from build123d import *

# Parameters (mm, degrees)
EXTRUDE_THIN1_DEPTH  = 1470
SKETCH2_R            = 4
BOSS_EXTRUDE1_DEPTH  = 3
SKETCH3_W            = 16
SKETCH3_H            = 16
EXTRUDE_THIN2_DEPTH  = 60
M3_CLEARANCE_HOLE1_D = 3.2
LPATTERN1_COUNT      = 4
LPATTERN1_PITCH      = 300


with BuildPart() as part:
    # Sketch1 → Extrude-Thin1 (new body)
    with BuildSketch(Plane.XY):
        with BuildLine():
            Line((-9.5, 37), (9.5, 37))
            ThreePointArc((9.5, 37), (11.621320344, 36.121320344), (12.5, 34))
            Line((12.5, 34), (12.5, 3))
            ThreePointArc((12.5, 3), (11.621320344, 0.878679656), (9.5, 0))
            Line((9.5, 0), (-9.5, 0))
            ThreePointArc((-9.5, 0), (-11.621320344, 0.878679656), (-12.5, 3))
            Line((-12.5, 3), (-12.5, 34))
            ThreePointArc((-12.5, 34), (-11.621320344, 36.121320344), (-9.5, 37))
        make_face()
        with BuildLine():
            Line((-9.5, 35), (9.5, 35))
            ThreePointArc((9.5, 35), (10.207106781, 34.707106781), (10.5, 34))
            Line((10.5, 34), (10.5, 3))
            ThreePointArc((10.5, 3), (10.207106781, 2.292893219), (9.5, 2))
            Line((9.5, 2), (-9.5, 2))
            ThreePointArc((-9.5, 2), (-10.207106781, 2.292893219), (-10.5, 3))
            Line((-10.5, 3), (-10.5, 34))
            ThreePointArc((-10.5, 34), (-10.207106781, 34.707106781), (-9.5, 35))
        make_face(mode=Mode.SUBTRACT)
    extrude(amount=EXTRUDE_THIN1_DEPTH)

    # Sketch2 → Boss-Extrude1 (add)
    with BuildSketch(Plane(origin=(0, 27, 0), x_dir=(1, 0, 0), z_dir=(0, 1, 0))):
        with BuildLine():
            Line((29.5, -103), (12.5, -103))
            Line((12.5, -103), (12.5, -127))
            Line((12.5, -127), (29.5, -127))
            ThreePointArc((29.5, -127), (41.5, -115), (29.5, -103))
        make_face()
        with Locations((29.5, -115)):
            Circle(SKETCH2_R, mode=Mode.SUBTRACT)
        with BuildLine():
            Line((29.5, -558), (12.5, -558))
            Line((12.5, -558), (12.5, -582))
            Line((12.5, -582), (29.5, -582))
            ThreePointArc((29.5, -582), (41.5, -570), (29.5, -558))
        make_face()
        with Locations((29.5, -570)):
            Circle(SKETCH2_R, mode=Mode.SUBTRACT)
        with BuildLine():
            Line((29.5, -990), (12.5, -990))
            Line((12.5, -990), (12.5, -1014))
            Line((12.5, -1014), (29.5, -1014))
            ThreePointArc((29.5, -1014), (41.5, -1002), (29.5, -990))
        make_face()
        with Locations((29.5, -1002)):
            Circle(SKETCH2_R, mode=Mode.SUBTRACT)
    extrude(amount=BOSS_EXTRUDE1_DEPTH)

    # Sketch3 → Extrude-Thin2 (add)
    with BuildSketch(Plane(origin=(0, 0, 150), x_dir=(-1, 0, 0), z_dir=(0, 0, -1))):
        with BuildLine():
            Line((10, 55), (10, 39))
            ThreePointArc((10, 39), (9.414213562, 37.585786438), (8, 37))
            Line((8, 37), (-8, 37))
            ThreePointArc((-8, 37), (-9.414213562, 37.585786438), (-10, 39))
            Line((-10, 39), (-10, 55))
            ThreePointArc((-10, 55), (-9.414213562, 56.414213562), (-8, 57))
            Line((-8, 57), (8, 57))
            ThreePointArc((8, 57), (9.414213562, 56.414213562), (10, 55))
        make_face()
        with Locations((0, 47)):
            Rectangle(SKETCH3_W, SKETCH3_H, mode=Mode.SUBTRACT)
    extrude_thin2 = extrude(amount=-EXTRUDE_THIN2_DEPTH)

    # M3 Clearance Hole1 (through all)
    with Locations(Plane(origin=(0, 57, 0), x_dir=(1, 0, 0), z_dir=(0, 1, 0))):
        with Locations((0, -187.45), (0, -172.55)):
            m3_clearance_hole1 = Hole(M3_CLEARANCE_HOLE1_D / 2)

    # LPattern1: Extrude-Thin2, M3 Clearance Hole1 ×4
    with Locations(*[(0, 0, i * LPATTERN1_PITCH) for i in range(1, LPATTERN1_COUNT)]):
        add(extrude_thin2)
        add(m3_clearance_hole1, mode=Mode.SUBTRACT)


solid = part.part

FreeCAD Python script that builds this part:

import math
import FreeCAD as App
import Part
import Sketcher
from FreeCAD import Vector
Q = App.Units.Quantity

doc = App.newDocument("Part")
params = doc.addObject("Spreadsheet::Sheet", "Params")
for row, (alias, value) in enumerate([
    ("sketch1_radius", "3 mm"),
    ("sketch1_radius2", "1 mm"),
    ("sketch1_width", "19 mm"),
    ("sketch1_height", "31 mm"),
    ("pad1_length", "1470 mm"),
    ("sketch2_diameter", "8 mm"),
    ("sketch2_radius", "12 mm"),
    ("sketch2_width", "17 mm"),
    ("pad2_length", "3 mm"),
    ("sketch3_radius", "2 mm"),
    ("sketch3_width", "16 mm"),
    ("pad3_length", "60 mm"),
    ("sketch4_diameter", "3.2 mm"),
    ("hole_diameter", "3.2 mm"),
    ("linearpattern_pitch", "300 mm"),
], start=1):
    params.set(f"A{row}", alias)
    params.set(f"B{row}", "=" + value)
    params.setAlias(f"B{row}", alias)

body = doc.addObject("PartDesign::Body", "Body")

# Sketch on XY plane
sketch1 = body.newObject("Sketcher::SketchObject", "Sketch")
sketch1.AttachmentSupport = (doc.getObject("XY_Plane"), [""])
sketch1.MapMode = "FlatFace"
sketch1.addGeometry([
    Part.LineSegment(Vector(9.5, 37, 0), Vector(-9.5, 37, 0)),  # 0
    Part.ArcOfCircle(Part.Circle(Vector(-9.5, 34, 0), Vector(0, 0, 1), 3), math.radians(90), math.radians(180)),  # 1
    Part.LineSegment(Vector(-12.5, 34, 0), Vector(-12.5, 3, 0)),  # 2
    Part.ArcOfCircle(Part.Circle(Vector(-9.5, 3, 0), Vector(0, 0, 1), 3), math.radians(180), math.radians(270)),  # 3
    Part.LineSegment(Vector(-9.5, 0, 0), Vector(9.5, 0, 0)),  # 4
    Part.ArcOfCircle(Part.Circle(Vector(9.5, 3, 0), Vector(0, 0, 1), 3), math.radians(-90), math.radians(0)),  # 5
    Part.LineSegment(Vector(12.5, 3, 0), Vector(12.5, 34, 0)),  # 6
    Part.ArcOfCircle(Part.Circle(Vector(9.5, 34, 0), Vector(0, 0, 1), 3), math.radians(0), math.radians(90)),  # 7
    Part.LineSegment(Vector(-9.5, 35, 0), Vector(9.5, 35, 0)),  # 8
    Part.ArcOfCircle(Part.Circle(Vector(9.5, 34, 0), Vector(0, 0, 1), 1), math.radians(0), math.radians(90)),  # 9
    Part.LineSegment(Vector(10.5, 34, 0), Vector(10.5, 3, 0)),  # 10
    Part.ArcOfCircle(Part.Circle(Vector(9.5, 3, 0), Vector(0, 0, 1), 1), math.radians(-90), math.radians(0)),  # 11
    Part.LineSegment(Vector(9.5, 2, 0), Vector(-9.5, 2, 0)),  # 12
    Part.ArcOfCircle(Part.Circle(Vector(-9.5, 3, 0), Vector(0, 0, 1), 1), math.radians(-180), math.radians(-90)),  # 13
    Part.LineSegment(Vector(-10.5, 3, 0), Vector(-10.5, 34, 0)),  # 14
    Part.ArcOfCircle(Part.Circle(Vector(-9.5, 34, 0), Vector(0, 0, 1), 1), math.radians(90), math.radians(180)),  # 15
], False)
sketch1.addConstraint([
    Sketcher.Constraint("Tangent", 0, 2, 1, 1),
    Sketcher.Constraint("Tangent", 1, 2, 2, 1),
    Sketcher.Constraint("Tangent", 2, 2, 3, 1),
    Sketcher.Constraint("Tangent", 3, 2, 4, 1),
    Sketcher.Constraint("Tangent", 4, 2, 5, 1),
    Sketcher.Constraint("Tangent", 5, 2, 6, 1),
    Sketcher.Constraint("Tangent", 6, 2, 7, 1),
    Sketcher.Constraint("Tangent", 7, 2, 0, 1),
    Sketcher.Constraint("Tangent", 8, 2, 9, 2),
    Sketcher.Constraint("Tangent", 9, 1, 10, 1),
    Sketcher.Constraint("Tangent", 10, 2, 11, 2),
    Sketcher.Constraint("Tangent", 11, 1, 12, 1),
    Sketcher.Constraint("Tangent", 12, 2, 13, 2),
    Sketcher.Constraint("Tangent", 13, 1, 14, 1),
    Sketcher.Constraint("Tangent", 14, 2, 15, 2),
    Sketcher.Constraint("Tangent", 15, 1, 8, 1),
    Sketcher.Constraint("Horizontal", 0),
    Sketcher.Constraint("Vertical", 2),
    Sketcher.Constraint("Horizontal", 4),
    Sketcher.Constraint("Vertical", 6),
    Sketcher.Constraint("Horizontal", 8),
    Sketcher.Constraint("Vertical", 10),
    Sketcher.Constraint("Horizontal", 12),
    Sketcher.Constraint("Vertical", 14),
    Sketcher.Constraint("Coincident", 9, 3, 7, 3),
    Sketcher.Constraint("Coincident", 11, 3, 5, 3),
    Sketcher.Constraint("Coincident", 13, 3, 3, 3),
    Sketcher.Constraint("Equal", 1, 3),
    Sketcher.Constraint("Equal", 3, 5),
    Sketcher.Constraint("Equal", 5, 7),
    Sketcher.Constraint("Equal", 13, 15),
    Sketcher.Constraint("Symmetric", 3, 2, 4, 2, -1, 1),
    Sketcher.Constraint("Radius", 1, Q("3 mm")),
    Sketcher.Constraint("Radius", 9, Q("1 mm")),
    Sketcher.Constraint("DistanceX", 0, 2, 0, 1, Q("19 mm")),
    Sketcher.Constraint("DistanceY", 2, 2, 2, 1, Q("31 mm")),
])
sketch1.setExpression("Constraints[32]", "Params.sketch1_radius")
sketch1.setExpression("Constraints[33]", "Params.sketch1_radius2")
sketch1.setExpression("Constraints[34]", "Params.sketch1_width")
sketch1.setExpression("Constraints[35]", "Params.sketch1_height")
pad1 = body.newObject("PartDesign::Pad", "Pad")
pad1.Profile = sketch1
pad1.setExpression("Length", "Params.pad1_length")

# Sketch on XZ plane
sketch2 = body.newObject("Sketcher::SketchObject", "Sketch001")
sketch2.AttachmentSupport = (doc.getObject("XZ_Plane"), [""])
sketch2.MapMode = "FlatFace"
sketch2.AttachmentOffset = App.Placement(Vector(0, 0, -27), App.Rotation())
sketch2.addGeometry([
    Part.LineSegment(Vector(29.5, 103, 0), Vector(12.5, 103, 0)),  # 0
    Part.LineSegment(Vector(12.5, 103, 0), Vector(12.5, 127, 0)),  # 1
    Part.LineSegment(Vector(12.5, 127, 0), Vector(29.5, 127, 0)),  # 2
    Part.ArcOfCircle(Part.Circle(Vector(29.5, 115, 0), Vector(0, 0, 1), 12), math.radians(-90), math.radians(90)),  # 3
    Part.Circle(Vector(29.5, 115, 0), Vector(0, 0, 1), 4),  # 4
    Part.LineSegment(Vector(29.5, 558, 0), Vector(12.5, 558, 0)),  # 5
    Part.LineSegment(Vector(12.5, 558, 0), Vector(12.5, 582, 0)),  # 6
    Part.LineSegment(Vector(12.5, 582, 0), Vector(29.5, 582, 0)),  # 7
    Part.ArcOfCircle(Part.Circle(Vector(29.5, 570, 0), Vector(0, 0, 1), 12), math.radians(-90), math.radians(90)),  # 8
    Part.Circle(Vector(29.5, 570, 0), Vector(0, 0, 1), 4),  # 9
    Part.LineSegment(Vector(29.5, 990, 0), Vector(12.5, 990, 0)),  # 10
    Part.LineSegment(Vector(12.5, 990, 0), Vector(12.5, 1014, 0)),  # 11
    Part.LineSegment(Vector(12.5, 1014, 0), Vector(29.5, 1014, 0)),  # 12
    Part.ArcOfCircle(Part.Circle(Vector(29.5, 1002, 0), Vector(0, 0, 1), 12), math.radians(-90), math.radians(90)),  # 13
    Part.Circle(Vector(29.5, 1002, 0), Vector(0, 0, 1), 4),  # 14
], False)
sketch2.addConstraint([
    Sketcher.Constraint("Coincident", 0, 2, 1, 1),
    Sketcher.Constraint("Coincident", 1, 2, 2, 1),
    Sketcher.Constraint("Tangent", 2, 2, 3, 2),
    Sketcher.Constraint("Tangent", 3, 1, 0, 1),
    Sketcher.Constraint("Coincident", 5, 2, 6, 1),
    Sketcher.Constraint("Coincident", 6, 2, 7, 1),
    Sketcher.Constraint("Tangent", 7, 2, 8, 2),
    Sketcher.Constraint("Tangent", 8, 1, 5, 1),
    Sketcher.Constraint("Coincident", 10, 2, 11, 1),
    Sketcher.Constraint("Coincident", 11, 2, 12, 1),
    Sketcher.Constraint("Tangent", 12, 2, 13, 2),
    Sketcher.Constraint("Tangent", 13, 1, 10, 1),
    Sketcher.Constraint("Horizontal", 0),
    Sketcher.Constraint("Vertical", 1),
    Sketcher.Constraint("Horizontal", 2),
    Sketcher.Constraint("Horizontal", 5),
    Sketcher.Constraint("Vertical", 6),
    Sketcher.Constraint("Horizontal", 7),
    Sketcher.Constraint("Horizontal", 10),
    Sketcher.Constraint("Vertical", 11),
    Sketcher.Constraint("Horizontal", 12),
    Sketcher.Constraint("Coincident", 4, 3, 3, 3),
    Sketcher.Constraint("Coincident", 9, 3, 8, 3),
    Sketcher.Constraint("Coincident", 14, 3, 13, 3),
    Sketcher.Constraint("Equal", 3, 8),
    Sketcher.Constraint("Equal", 4, 9),
    Sketcher.Constraint("Equal", 8, 13),
    Sketcher.Constraint("Equal", 9, 14),
    Sketcher.Constraint("Vertical", 4, 3, 8, 3),
    Sketcher.Constraint("Vertical", 9, 3, 13, 3),
    Sketcher.Constraint("Vertical", 1, 2, 5, 2),
    Sketcher.Constraint("Vertical", 6, 2, 10, 2),
    Sketcher.Constraint("Diameter", 4, Q("8 mm")),
    Sketcher.Constraint("Radius", 3, Q("12 mm")),
    Sketcher.Constraint("DistanceX", 0, 2, 0, 1, Q("17 mm")),
    Sketcher.Constraint("DistanceY", -1, 1, 3, 3, Q("115 mm")),
    Sketcher.Constraint("DistanceY", -1, 1, 8, 3, Q("570 mm")),
    Sketcher.Constraint("DistanceY", -1, 1, 13, 3, Q("1002 mm")),
    Sketcher.Constraint("DistanceX", -1, 1, 3, 3, Q("29.5 mm")),
])
sketch2.setExpression("Constraints[32]", "Params.sketch2_diameter")
sketch2.setExpression("Constraints[33]", "Params.sketch2_radius")
sketch2.setExpression("Constraints[34]", "Params.sketch2_width")
pad2 = body.newObject("PartDesign::Pad", "Pad001")
pad2.Profile = sketch2
pad2.setExpression("Length", "Params.pad2_length")
pad2.Reversed = True

# Sketch on XY plane
sketch3 = body.newObject("Sketcher::SketchObject", "Sketch002")
sketch3.AttachmentSupport = (doc.getObject("XY_Plane"), [""])
sketch3.MapMode = "FlatFace"
sketch3.AttachmentOffset = App.Placement(Vector(0, 0, 150), App.Rotation())
sketch3.addGeometry([
    Part.LineSegment(Vector(-10, 39, 0), Vector(-10, 55, 0)),  # 0
    Part.ArcOfCircle(Part.Circle(Vector(-8, 55, 0), Vector(0, 0, 1), 2), math.radians(90), math.radians(180)),  # 1
    Part.LineSegment(Vector(-8, 57, 0), Vector(8, 57, 0)),  # 2
    Part.ArcOfCircle(Part.Circle(Vector(8, 55, 0), Vector(0, 0, 1), 2), math.radians(0), math.radians(90)),  # 3
    Part.LineSegment(Vector(10, 55, 0), Vector(10, 39, 0)),  # 4
    Part.ArcOfCircle(Part.Circle(Vector(8, 39, 0), Vector(0, 0, 1), 2), math.radians(-90), math.radians(0)),  # 5
    Part.LineSegment(Vector(8, 37, 0), Vector(-8, 37, 0)),  # 6
    Part.ArcOfCircle(Part.Circle(Vector(-8, 39, 0), Vector(0, 0, 1), 2), math.radians(-180), math.radians(-90)),  # 7
    Part.LineSegment(Vector(8, 39, 0), Vector(8, 55, 0)),  # 8
    Part.LineSegment(Vector(8, 55, 0), Vector(-8, 55, 0)),  # 9
    Part.LineSegment(Vector(-8, 55, 0), Vector(-8, 39, 0)),  # 10
    Part.LineSegment(Vector(-8, 39, 0), Vector(8, 39, 0)),  # 11
], False)
sketch3.addConstraint([
    Sketcher.Constraint("Tangent", 0, 2, 1, 2),
    Sketcher.Constraint("Tangent", 1, 1, 2, 1),
    Sketcher.Constraint("Tangent", 2, 2, 3, 2),
    Sketcher.Constraint("Tangent", 3, 1, 4, 1),
    Sketcher.Constraint("Tangent", 4, 2, 5, 2),
    Sketcher.Constraint("Tangent", 5, 1, 6, 1),
    Sketcher.Constraint("Tangent", 6, 2, 7, 2),
    Sketcher.Constraint("Tangent", 7, 1, 0, 1),
    Sketcher.Constraint("Coincident", 8, 2, 9, 1),
    Sketcher.Constraint("Coincident", 9, 2, 10, 1),
    Sketcher.Constraint("Coincident", 10, 2, 11, 1),
    Sketcher.Constraint("Coincident", 11, 2, 8, 1),
    Sketcher.Constraint("Vertical", 0),
    Sketcher.Constraint("Horizontal", 2),
    Sketcher.Constraint("Vertical", 4),
    Sketcher.Constraint("Horizontal", 6),
    Sketcher.Constraint("Vertical", 8),
    Sketcher.Constraint("Horizontal", 9),
    Sketcher.Constraint("Vertical", 10),
    Sketcher.Constraint("Horizontal", 11),
    Sketcher.Constraint("Coincident", 8, 2, 3, 3),
    Sketcher.Constraint("Coincident", 9, 2, 1, 3),
    Sketcher.Constraint("Coincident", 10, 2, 7, 3),
    Sketcher.Constraint("Equal", 3, 5),
    Sketcher.Constraint("Equal", 11, 0),
    Sketcher.Constraint("Radius", 1, Q("2 mm")),
    Sketcher.Constraint("DistanceX", 2, 1, 2, 2, Q("16 mm")),
    Sketcher.Constraint("DistanceX", 1, 3, -1, 1, Q("8 mm")),
    Sketcher.Constraint("DistanceY", -1, 1, 1, 3, Q("55 mm")),
])
sketch3.setExpression("Constraints[25]", "Params.sketch3_radius")
sketch3.setExpression("Constraints[26]", "Params.sketch3_width")
pad3 = body.newObject("PartDesign::Pad", "Pad002")
pad3.Profile = sketch3
pad3.setExpression("Length", "Params.pad3_length")

# Sketch on XZ plane
sketch4 = body.newObject("Sketcher::SketchObject", "Sketch003")
sketch4.AttachmentSupport = (doc.getObject("XZ_Plane"), [""])
sketch4.MapMode = "FlatFace"
sketch4.AttachmentOffset = App.Placement(Vector(0, 0, -57), App.Rotation())
sketch4.addGeometry([
    Part.Circle(Vector(0, 187.45, 0), Vector(0, 0, 1), 1.6),
    Part.Circle(Vector(0, 172.55, 0), Vector(0, 0, 1), 1.6),
], False)
sketch4.addConstraint([
    Sketcher.Constraint("Equal", 0, 1),
    Sketcher.Constraint("PointOnObject", 0, 3, -2),
    Sketcher.Constraint("PointOnObject", 1, 3, -2),
    Sketcher.Constraint("Diameter", 0, Q("3.2 mm")),
    Sketcher.Constraint("DistanceY", 1, 3, 0, 3, Q("14.9 mm")),
    Sketcher.Constraint("DistanceY", -1, 1, 0, 3, Q("187.45 mm")),
])
sketch4.setExpression("Constraints[3]", "Params.sketch4_diameter")
doc.recompute()
hole = body.newObject("PartDesign::Hole", "Hole")
hole.Profile = sketch4
hole.ThreadType = "None"
hole.setExpression("Diameter", "Params.hole_diameter")
hole.DepthType = "ThroughAll"
hole.Reversed = True
doc.recompute()

linearpattern = body.newObject("PartDesign::LinearPattern", "LinearPattern")
linearpattern.Originals = [pad3, hole]
linearpattern.Direction = (doc.getObject("Z_Axis"), [""])
linearpattern.Mode = "offset"
linearpattern.setExpression("Offset", "Params.linearpattern_pitch")
linearpattern.Occurrences = 4
body.Tip = linearpattern

doc.recompute()
